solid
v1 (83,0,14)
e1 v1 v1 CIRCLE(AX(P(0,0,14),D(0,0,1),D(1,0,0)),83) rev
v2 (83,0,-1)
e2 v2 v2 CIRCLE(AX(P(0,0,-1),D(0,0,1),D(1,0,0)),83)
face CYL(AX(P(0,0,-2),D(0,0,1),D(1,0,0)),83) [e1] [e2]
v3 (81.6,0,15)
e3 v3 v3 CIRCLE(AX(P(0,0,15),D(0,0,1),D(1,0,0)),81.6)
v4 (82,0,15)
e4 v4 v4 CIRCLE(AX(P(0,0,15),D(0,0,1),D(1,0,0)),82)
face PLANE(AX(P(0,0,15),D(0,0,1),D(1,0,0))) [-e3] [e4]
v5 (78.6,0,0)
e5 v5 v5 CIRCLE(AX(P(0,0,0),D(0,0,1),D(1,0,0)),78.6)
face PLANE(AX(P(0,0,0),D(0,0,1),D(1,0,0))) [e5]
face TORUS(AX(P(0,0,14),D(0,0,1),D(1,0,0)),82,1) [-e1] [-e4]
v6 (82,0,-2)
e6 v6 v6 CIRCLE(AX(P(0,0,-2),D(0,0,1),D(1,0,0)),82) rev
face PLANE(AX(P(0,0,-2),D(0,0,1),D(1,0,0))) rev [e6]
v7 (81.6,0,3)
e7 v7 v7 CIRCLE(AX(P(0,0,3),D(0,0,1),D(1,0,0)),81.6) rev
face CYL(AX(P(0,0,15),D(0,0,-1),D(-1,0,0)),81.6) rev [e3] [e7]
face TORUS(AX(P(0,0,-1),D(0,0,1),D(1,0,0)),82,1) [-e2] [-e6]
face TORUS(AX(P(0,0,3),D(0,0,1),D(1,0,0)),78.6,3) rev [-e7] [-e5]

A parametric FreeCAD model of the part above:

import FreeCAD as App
import Part
import Sketcher
from FreeCAD import Vector
Q = App.Units.Quantity


def edges_at(feature, points):
    """Names of the edges that pass closest to the given points."""
    edges = feature.Shape.Edges
    near = lambda p: min(range(len(edges)), key=lambda i: edges[i].distToShape(Part.Vertex(*p))[0])
    return sorted({f"Edge{near(p) + 1}" for p in points})

doc = App.newDocument("Part")
body = doc.addObject("PartDesign::Body", "Body")

# Sketch on XY plane
sketch1 = doc.addObject("Sketcher::SketchObject", "Sketch")
body.addObject(sketch1)
sketch1.AttachmentSupport = (doc.XY_Plane, [""])
sketch1.MapMode = "FlatFace"
sketch1.addGeometry(Part.Circle(Vector(0, 0, 0), Vector(0, 0, 1), 83), False)
sketch1.addConstraint([
    Sketcher.Constraint("Coincident", 0, 3, -1, 1),
    Sketcher.Constraint("Diameter", 0, Q("166 mm")),
])
pad1 = doc.addObject("PartDesign::Pad", "Pad")
body.addObject(pad1)
pad1.Profile = sketch1
pad1.Length = 2
pad1.Reversed = True

# Sketch on XY plane
sketch2 = doc.addObject("Sketcher::SketchObject", "Sketch001")
body.addObject(sketch2)
sketch2.AttachmentSupport = (doc.XY_Plane, [""])
sketch2.MapMode = "FlatFace"
sketch2.AttachmentOffset = App.Placement(Vector(0, 0, 15), App.Rotation())
sketch2.addGeometry([
    Part.Circle(Vector(0, 0, 0), Vector(0, 0, 1), 83),
    Part.Circle(Vector(0, 0, 0), Vector(0, 0, 1), 82),
], False)
sketch2.addConstraint([
    Sketcher.Constraint("Coincident", 0, 3, -1, 1),
    Sketcher.Constraint("Coincident", 1, 3, -1, 1),
    Sketcher.Constraint("Diameter", 0, Q("166 mm")),
    Sketcher.Constraint("Diameter", 1, Q("163.2 mm")),
])
pad2 = doc.addObject("PartDesign::Pad", "Pad001")
body.addObject(pad2)
pad2.Profile = sketch2
pad2.Length = 15
pad2.Reversed = True
doc.recompute()

fillet = doc.addObject("PartDesign::Fillet", "Fillet")
body.addObject(fillet)
fillet.Base = (pad2, edges_at(pad2, [(-83, 0, -2)]))
fillet.Radius = 1
doc.recompute()

fillet2 = doc.addObject("PartDesign::Fillet", "Fillet001")
body.addObject(fillet2)
fillet2.Base = (fillet, edges_at(fillet, [(-83, 0, 15)]))
fillet2.Radius = 1
doc.recompute()

fillet3 = doc.addObject("PartDesign::Fillet", "Fillet002")
body.addObject(fillet3)
fillet3.Base = (fillet2, edges_at(fillet2, [(-81.6, 0, 0)]))
fillet3.Radius = 3

doc.recompute()
